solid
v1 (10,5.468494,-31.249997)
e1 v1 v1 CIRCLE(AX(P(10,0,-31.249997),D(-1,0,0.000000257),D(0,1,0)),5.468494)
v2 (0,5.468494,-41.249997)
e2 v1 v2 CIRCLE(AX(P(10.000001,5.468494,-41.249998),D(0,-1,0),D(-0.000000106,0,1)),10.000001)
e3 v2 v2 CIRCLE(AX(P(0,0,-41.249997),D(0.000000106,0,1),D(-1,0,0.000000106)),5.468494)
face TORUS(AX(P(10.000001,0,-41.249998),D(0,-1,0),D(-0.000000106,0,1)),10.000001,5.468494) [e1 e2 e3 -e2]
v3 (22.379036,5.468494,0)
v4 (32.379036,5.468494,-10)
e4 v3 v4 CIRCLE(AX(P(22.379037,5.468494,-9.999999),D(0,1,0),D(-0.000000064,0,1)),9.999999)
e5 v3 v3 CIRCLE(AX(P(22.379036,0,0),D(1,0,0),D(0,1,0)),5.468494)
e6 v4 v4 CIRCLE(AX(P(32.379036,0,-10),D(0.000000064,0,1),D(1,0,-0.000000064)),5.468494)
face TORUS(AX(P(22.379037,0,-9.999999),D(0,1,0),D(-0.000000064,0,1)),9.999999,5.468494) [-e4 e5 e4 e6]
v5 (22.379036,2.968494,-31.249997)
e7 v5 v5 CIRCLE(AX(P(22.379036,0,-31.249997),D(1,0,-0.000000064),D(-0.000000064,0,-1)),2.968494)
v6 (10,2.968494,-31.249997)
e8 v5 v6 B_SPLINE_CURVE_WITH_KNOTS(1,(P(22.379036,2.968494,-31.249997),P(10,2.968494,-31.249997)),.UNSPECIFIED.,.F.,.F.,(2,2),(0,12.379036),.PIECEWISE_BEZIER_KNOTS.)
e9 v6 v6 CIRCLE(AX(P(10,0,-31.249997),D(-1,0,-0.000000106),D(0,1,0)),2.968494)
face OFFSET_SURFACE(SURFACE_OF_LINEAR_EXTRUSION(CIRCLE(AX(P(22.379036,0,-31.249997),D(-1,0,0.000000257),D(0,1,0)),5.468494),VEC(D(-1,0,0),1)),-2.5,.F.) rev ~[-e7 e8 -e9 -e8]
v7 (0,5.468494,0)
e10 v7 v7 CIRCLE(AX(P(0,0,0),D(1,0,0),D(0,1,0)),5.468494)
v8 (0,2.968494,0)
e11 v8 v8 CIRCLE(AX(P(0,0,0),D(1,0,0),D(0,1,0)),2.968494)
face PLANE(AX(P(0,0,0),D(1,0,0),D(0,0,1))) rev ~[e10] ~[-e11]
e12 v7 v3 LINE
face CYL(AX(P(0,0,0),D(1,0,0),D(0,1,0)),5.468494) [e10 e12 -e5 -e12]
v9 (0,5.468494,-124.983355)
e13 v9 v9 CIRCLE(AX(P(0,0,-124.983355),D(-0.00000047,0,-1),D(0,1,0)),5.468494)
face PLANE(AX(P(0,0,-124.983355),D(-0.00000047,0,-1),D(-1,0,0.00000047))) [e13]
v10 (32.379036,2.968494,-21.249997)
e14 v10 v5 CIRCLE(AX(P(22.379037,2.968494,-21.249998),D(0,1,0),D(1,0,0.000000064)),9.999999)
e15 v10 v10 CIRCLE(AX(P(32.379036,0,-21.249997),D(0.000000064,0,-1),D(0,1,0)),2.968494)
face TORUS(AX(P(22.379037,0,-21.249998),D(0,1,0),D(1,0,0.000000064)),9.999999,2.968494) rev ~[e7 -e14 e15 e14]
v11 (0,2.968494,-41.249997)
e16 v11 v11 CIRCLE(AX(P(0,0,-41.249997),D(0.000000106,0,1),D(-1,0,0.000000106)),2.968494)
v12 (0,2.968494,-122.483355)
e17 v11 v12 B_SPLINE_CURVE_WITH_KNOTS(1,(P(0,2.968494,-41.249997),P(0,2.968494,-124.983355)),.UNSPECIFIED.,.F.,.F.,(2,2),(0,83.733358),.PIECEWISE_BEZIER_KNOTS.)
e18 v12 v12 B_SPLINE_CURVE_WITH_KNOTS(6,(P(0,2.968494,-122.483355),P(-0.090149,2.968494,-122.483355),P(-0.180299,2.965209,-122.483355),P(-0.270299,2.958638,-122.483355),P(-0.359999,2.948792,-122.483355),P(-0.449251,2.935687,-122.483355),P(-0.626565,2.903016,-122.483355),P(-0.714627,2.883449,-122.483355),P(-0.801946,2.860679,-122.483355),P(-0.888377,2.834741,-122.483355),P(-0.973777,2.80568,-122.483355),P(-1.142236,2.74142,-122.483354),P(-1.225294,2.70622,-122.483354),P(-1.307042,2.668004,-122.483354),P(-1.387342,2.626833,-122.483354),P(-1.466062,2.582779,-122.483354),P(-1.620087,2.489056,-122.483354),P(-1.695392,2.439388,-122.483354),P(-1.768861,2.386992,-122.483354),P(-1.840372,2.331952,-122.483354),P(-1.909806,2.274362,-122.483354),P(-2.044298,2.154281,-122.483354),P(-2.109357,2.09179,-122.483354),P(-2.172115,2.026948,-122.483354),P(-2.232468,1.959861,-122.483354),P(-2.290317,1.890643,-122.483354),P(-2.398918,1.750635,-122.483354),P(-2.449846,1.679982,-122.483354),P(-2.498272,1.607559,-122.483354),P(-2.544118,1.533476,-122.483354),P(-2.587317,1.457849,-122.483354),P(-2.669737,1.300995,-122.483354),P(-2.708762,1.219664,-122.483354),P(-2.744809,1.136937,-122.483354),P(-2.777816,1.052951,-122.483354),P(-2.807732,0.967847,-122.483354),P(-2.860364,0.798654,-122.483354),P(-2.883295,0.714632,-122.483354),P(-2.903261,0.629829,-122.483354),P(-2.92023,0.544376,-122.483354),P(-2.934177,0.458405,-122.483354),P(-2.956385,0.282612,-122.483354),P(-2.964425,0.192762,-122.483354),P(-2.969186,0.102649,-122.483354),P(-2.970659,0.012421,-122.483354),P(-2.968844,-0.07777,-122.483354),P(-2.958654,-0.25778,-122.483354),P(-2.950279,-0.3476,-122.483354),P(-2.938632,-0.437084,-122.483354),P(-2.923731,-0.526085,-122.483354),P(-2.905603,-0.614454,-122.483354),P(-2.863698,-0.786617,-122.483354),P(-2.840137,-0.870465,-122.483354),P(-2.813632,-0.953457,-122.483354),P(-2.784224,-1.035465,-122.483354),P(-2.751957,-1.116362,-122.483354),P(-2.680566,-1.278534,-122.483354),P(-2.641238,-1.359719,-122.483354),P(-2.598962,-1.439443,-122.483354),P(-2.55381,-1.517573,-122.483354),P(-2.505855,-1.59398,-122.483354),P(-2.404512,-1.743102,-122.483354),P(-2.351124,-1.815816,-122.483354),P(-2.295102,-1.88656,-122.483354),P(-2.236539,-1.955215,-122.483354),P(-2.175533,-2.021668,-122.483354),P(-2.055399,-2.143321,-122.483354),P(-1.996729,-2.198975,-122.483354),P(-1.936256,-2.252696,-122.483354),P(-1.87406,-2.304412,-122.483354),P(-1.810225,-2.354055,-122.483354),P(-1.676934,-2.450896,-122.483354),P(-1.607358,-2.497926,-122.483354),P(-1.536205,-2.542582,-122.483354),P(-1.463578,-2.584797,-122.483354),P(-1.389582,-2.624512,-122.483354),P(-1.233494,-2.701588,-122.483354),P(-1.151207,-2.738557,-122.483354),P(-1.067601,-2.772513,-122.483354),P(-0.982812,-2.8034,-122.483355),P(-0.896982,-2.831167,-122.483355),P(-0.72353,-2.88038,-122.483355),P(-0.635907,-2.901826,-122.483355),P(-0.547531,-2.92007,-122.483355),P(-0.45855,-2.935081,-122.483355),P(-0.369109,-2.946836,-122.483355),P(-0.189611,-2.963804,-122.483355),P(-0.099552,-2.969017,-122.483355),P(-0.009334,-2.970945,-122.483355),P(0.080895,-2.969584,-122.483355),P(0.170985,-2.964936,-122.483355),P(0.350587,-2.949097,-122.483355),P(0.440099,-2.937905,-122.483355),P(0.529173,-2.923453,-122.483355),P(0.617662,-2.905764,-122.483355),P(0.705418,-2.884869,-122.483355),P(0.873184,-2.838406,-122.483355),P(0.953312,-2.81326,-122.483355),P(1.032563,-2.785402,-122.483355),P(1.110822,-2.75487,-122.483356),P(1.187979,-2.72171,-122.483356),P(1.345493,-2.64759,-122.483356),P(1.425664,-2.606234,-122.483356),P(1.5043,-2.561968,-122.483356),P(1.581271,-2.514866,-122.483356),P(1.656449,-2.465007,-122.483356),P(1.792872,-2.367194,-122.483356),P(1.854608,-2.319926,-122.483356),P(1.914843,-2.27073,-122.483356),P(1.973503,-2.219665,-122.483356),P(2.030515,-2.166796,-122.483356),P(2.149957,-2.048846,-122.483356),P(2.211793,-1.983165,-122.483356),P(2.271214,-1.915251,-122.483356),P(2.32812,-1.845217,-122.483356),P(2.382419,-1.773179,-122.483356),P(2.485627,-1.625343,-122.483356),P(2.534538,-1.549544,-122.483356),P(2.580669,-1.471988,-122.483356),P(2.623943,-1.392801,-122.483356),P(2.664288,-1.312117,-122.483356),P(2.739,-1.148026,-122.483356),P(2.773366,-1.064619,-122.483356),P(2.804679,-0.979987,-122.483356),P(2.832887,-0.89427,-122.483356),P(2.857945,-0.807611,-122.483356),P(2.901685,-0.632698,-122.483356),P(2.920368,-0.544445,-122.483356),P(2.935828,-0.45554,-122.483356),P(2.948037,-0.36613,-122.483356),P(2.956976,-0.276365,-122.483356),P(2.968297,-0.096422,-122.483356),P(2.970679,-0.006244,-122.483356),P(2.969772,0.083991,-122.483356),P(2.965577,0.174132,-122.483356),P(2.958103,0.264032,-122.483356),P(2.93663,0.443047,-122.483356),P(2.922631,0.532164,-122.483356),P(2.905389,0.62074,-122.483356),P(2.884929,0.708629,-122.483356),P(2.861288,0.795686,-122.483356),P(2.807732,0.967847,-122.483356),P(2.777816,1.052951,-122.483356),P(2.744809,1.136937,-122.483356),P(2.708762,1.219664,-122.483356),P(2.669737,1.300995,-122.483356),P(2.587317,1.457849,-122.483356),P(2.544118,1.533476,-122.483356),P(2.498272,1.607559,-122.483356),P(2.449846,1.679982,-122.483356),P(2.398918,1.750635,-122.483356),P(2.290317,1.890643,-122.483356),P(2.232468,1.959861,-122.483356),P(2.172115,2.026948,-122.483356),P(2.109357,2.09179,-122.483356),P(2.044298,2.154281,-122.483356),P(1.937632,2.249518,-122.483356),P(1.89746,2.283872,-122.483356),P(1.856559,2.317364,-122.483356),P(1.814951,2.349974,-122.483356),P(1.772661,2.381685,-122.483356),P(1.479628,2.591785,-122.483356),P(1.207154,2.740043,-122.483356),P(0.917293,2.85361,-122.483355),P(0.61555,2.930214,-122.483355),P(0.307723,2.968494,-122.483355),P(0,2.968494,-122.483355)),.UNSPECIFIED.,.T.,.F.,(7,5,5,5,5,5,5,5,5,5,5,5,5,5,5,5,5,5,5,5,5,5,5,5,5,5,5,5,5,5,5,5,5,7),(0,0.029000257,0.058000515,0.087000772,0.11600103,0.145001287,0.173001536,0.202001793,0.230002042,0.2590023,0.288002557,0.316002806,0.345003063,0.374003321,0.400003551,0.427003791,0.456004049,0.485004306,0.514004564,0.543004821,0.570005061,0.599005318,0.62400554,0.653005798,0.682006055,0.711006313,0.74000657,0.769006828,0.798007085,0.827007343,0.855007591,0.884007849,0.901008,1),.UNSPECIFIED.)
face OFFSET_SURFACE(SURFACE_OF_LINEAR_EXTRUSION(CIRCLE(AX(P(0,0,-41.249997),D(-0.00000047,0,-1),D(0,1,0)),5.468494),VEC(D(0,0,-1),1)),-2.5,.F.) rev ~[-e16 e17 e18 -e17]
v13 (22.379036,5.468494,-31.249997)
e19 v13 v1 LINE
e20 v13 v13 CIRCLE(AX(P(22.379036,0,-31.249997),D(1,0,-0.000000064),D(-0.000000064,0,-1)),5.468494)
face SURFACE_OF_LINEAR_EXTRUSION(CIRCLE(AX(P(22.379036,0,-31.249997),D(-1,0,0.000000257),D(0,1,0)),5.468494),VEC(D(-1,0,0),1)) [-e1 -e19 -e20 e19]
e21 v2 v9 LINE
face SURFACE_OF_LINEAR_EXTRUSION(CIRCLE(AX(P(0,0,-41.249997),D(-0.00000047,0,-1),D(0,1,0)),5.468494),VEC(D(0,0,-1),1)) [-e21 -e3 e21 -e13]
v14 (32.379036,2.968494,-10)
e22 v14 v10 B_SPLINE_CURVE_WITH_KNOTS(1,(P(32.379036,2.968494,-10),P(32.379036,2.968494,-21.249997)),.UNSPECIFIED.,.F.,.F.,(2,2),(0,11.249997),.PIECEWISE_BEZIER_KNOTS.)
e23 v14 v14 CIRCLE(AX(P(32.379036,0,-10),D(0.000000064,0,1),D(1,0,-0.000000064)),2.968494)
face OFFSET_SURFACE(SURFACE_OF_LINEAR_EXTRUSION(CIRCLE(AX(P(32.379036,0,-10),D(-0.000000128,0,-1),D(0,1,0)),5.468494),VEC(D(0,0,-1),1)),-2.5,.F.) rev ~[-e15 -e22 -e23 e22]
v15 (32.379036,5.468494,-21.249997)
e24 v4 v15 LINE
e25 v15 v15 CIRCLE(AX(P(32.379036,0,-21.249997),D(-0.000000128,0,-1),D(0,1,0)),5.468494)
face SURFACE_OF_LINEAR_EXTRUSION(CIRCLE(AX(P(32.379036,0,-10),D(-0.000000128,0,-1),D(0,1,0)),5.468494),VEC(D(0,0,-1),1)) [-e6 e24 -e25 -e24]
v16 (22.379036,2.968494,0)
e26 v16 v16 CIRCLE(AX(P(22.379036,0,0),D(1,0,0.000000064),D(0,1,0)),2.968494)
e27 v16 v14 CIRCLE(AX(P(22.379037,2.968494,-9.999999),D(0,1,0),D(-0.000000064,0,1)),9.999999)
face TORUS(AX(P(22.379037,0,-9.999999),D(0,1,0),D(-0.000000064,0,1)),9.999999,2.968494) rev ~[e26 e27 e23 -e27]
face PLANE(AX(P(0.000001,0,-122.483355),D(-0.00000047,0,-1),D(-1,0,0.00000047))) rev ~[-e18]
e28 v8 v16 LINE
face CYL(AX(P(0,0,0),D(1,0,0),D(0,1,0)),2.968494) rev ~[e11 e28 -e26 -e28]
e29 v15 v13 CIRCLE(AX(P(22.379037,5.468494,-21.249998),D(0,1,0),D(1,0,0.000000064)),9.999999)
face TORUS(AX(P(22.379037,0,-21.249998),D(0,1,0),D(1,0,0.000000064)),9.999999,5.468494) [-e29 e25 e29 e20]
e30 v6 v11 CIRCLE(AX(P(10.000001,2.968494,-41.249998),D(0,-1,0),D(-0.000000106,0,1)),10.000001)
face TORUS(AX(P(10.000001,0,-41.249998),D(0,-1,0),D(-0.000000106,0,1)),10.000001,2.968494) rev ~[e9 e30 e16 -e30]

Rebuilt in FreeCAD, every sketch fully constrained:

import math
import FreeCAD as App
import Part
import Sketcher

V = App.Vector
Q = App.Units.Quantity


def faces_at(feature, points):
    """Names of the faces that lie closest to the given points."""
    faces = feature.Shape.Faces
    near = lambda p: min(range(len(faces)), key=lambda i: faces[i].distToShape(Part.Vertex(*p))[0])
    return sorted({f"Face{near(p) + 1}" for p in points})

doc = App.newDocument("Part")
body = doc.addObject("PartDesign::Body", "Body")

sketch1 = body.newObject("Sketcher::SketchObject", "Sketch")
sketch1.AttachmentSupport = (doc.getObject("YZ_Plane"), [""])
sketch1.MapMode = "FlatFace"
sketch1.addGeometry(Part.Circle(V(0, 0, 0), V(0, 0, 1), 5.468494), False)
sketch1.addConstraint([
    Sketcher.Constraint("Coincident", 0, 3, -1, 1),
    Sketcher.Constraint("Diameter", 0, Q("10.936988 mm")),
])

sketch2 = body.newObject("Sketcher::SketchObject", "Sketch001")
sketch2.AttachmentSupport = (doc.getObject("XZ_Plane"), [""])
sketch2.MapMode = "FlatFace"
sketch2.addGeometry([
    Part.LineSegment(V(0, 0, 0), V(22.379036, 0, 0)),
    Part.ArcOfCircle(Part.Circle(V(22.379037, -9.999999, 0), V(0, 0, 1), 9.999999), math.radians(-0.000004), math.radians(90.000004)),
    Part.LineSegment(V(32.379036, -10, 0), V(32.379036, -21.249997, 0)),
    Part.ArcOfCircle(Part.Circle(V(22.379037, -21.249998, 0), V(0, 0, 1), 9.999999), math.radians(-90.000004), math.radians(0.000004)),
    Part.LineSegment(V(22.379036, -31.249997, 0), V(10, -31.249997, 0)),
    Part.ArcOfCircle(Part.Circle(V(10.000001, -41.249998, 0), V(0, 0, 1), 10.000001), math.radians(90.000006), math.radians(179.999994)),
    Part.LineSegment(V(0, -41.249997, 0), V(0, -124.983355, 0)),
], False)
sketch2.addConstraint([
    Sketcher.Constraint("Tangent", 0, 2, 1, 2),
    Sketcher.Constraint("Tangent", 1, 1, 2, 1),
    Sketcher.Constraint("Tangent", 2, 2, 3, 2),
    Sketcher.Constraint("Tangent", 3, 1, 4, 1),
    Sketcher.Constraint("Tangent", 4, 2, 5, 1),
    Sketcher.Constraint("Tangent", 5, 2, 6, 1),
    Sketcher.Constraint("Horizontal", 0),
    Sketcher.Constraint("Vertical", 2),
    Sketcher.Constraint("Horizontal", 4),
    Sketcher.Constraint("Vertical", 6),
    Sketcher.Constraint("Coincident", 0, 1, -1, 1),
    Sketcher.Constraint("Equal", 1, 3),
    Sketcher.Constraint("Equal", 3, 5),
    Sketcher.Constraint("PointOnObject", 5, 2, -2),
    Sketcher.Constraint("Radius", 1, Q("9.999999 mm")),
    Sketcher.Constraint("DistanceY", 5, 3, -1, 1, Q("41.249998 mm")),
    Sketcher.Constraint("DistanceY", 6, 2, 6, 1, Q("83.733358 mm")),
    Sketcher.Constraint("DistanceX", 0, 1, 0, 2, Q("22.379036 mm")),
])
doc.recompute()

additivepipe = body.newObject("PartDesign::AdditivePipe", "AdditivePipe")
additivepipe.Profile = sketch1
additivepipe.Spine = (sketch2, ["Edge1", "Edge2", "Edge3", "Edge4", "Edge5", "Edge6", "Edge7"])
doc.recompute()

thickness = body.newObject("PartDesign::Thickness", "Thickness")
thickness.Base = (additivepipe, faces_at(additivepipe, [(0, 0, 0)]))
thickness.Value = 2.5
thickness.Reversed = True
thickness.Join = "Arc"

doc.recompute()
